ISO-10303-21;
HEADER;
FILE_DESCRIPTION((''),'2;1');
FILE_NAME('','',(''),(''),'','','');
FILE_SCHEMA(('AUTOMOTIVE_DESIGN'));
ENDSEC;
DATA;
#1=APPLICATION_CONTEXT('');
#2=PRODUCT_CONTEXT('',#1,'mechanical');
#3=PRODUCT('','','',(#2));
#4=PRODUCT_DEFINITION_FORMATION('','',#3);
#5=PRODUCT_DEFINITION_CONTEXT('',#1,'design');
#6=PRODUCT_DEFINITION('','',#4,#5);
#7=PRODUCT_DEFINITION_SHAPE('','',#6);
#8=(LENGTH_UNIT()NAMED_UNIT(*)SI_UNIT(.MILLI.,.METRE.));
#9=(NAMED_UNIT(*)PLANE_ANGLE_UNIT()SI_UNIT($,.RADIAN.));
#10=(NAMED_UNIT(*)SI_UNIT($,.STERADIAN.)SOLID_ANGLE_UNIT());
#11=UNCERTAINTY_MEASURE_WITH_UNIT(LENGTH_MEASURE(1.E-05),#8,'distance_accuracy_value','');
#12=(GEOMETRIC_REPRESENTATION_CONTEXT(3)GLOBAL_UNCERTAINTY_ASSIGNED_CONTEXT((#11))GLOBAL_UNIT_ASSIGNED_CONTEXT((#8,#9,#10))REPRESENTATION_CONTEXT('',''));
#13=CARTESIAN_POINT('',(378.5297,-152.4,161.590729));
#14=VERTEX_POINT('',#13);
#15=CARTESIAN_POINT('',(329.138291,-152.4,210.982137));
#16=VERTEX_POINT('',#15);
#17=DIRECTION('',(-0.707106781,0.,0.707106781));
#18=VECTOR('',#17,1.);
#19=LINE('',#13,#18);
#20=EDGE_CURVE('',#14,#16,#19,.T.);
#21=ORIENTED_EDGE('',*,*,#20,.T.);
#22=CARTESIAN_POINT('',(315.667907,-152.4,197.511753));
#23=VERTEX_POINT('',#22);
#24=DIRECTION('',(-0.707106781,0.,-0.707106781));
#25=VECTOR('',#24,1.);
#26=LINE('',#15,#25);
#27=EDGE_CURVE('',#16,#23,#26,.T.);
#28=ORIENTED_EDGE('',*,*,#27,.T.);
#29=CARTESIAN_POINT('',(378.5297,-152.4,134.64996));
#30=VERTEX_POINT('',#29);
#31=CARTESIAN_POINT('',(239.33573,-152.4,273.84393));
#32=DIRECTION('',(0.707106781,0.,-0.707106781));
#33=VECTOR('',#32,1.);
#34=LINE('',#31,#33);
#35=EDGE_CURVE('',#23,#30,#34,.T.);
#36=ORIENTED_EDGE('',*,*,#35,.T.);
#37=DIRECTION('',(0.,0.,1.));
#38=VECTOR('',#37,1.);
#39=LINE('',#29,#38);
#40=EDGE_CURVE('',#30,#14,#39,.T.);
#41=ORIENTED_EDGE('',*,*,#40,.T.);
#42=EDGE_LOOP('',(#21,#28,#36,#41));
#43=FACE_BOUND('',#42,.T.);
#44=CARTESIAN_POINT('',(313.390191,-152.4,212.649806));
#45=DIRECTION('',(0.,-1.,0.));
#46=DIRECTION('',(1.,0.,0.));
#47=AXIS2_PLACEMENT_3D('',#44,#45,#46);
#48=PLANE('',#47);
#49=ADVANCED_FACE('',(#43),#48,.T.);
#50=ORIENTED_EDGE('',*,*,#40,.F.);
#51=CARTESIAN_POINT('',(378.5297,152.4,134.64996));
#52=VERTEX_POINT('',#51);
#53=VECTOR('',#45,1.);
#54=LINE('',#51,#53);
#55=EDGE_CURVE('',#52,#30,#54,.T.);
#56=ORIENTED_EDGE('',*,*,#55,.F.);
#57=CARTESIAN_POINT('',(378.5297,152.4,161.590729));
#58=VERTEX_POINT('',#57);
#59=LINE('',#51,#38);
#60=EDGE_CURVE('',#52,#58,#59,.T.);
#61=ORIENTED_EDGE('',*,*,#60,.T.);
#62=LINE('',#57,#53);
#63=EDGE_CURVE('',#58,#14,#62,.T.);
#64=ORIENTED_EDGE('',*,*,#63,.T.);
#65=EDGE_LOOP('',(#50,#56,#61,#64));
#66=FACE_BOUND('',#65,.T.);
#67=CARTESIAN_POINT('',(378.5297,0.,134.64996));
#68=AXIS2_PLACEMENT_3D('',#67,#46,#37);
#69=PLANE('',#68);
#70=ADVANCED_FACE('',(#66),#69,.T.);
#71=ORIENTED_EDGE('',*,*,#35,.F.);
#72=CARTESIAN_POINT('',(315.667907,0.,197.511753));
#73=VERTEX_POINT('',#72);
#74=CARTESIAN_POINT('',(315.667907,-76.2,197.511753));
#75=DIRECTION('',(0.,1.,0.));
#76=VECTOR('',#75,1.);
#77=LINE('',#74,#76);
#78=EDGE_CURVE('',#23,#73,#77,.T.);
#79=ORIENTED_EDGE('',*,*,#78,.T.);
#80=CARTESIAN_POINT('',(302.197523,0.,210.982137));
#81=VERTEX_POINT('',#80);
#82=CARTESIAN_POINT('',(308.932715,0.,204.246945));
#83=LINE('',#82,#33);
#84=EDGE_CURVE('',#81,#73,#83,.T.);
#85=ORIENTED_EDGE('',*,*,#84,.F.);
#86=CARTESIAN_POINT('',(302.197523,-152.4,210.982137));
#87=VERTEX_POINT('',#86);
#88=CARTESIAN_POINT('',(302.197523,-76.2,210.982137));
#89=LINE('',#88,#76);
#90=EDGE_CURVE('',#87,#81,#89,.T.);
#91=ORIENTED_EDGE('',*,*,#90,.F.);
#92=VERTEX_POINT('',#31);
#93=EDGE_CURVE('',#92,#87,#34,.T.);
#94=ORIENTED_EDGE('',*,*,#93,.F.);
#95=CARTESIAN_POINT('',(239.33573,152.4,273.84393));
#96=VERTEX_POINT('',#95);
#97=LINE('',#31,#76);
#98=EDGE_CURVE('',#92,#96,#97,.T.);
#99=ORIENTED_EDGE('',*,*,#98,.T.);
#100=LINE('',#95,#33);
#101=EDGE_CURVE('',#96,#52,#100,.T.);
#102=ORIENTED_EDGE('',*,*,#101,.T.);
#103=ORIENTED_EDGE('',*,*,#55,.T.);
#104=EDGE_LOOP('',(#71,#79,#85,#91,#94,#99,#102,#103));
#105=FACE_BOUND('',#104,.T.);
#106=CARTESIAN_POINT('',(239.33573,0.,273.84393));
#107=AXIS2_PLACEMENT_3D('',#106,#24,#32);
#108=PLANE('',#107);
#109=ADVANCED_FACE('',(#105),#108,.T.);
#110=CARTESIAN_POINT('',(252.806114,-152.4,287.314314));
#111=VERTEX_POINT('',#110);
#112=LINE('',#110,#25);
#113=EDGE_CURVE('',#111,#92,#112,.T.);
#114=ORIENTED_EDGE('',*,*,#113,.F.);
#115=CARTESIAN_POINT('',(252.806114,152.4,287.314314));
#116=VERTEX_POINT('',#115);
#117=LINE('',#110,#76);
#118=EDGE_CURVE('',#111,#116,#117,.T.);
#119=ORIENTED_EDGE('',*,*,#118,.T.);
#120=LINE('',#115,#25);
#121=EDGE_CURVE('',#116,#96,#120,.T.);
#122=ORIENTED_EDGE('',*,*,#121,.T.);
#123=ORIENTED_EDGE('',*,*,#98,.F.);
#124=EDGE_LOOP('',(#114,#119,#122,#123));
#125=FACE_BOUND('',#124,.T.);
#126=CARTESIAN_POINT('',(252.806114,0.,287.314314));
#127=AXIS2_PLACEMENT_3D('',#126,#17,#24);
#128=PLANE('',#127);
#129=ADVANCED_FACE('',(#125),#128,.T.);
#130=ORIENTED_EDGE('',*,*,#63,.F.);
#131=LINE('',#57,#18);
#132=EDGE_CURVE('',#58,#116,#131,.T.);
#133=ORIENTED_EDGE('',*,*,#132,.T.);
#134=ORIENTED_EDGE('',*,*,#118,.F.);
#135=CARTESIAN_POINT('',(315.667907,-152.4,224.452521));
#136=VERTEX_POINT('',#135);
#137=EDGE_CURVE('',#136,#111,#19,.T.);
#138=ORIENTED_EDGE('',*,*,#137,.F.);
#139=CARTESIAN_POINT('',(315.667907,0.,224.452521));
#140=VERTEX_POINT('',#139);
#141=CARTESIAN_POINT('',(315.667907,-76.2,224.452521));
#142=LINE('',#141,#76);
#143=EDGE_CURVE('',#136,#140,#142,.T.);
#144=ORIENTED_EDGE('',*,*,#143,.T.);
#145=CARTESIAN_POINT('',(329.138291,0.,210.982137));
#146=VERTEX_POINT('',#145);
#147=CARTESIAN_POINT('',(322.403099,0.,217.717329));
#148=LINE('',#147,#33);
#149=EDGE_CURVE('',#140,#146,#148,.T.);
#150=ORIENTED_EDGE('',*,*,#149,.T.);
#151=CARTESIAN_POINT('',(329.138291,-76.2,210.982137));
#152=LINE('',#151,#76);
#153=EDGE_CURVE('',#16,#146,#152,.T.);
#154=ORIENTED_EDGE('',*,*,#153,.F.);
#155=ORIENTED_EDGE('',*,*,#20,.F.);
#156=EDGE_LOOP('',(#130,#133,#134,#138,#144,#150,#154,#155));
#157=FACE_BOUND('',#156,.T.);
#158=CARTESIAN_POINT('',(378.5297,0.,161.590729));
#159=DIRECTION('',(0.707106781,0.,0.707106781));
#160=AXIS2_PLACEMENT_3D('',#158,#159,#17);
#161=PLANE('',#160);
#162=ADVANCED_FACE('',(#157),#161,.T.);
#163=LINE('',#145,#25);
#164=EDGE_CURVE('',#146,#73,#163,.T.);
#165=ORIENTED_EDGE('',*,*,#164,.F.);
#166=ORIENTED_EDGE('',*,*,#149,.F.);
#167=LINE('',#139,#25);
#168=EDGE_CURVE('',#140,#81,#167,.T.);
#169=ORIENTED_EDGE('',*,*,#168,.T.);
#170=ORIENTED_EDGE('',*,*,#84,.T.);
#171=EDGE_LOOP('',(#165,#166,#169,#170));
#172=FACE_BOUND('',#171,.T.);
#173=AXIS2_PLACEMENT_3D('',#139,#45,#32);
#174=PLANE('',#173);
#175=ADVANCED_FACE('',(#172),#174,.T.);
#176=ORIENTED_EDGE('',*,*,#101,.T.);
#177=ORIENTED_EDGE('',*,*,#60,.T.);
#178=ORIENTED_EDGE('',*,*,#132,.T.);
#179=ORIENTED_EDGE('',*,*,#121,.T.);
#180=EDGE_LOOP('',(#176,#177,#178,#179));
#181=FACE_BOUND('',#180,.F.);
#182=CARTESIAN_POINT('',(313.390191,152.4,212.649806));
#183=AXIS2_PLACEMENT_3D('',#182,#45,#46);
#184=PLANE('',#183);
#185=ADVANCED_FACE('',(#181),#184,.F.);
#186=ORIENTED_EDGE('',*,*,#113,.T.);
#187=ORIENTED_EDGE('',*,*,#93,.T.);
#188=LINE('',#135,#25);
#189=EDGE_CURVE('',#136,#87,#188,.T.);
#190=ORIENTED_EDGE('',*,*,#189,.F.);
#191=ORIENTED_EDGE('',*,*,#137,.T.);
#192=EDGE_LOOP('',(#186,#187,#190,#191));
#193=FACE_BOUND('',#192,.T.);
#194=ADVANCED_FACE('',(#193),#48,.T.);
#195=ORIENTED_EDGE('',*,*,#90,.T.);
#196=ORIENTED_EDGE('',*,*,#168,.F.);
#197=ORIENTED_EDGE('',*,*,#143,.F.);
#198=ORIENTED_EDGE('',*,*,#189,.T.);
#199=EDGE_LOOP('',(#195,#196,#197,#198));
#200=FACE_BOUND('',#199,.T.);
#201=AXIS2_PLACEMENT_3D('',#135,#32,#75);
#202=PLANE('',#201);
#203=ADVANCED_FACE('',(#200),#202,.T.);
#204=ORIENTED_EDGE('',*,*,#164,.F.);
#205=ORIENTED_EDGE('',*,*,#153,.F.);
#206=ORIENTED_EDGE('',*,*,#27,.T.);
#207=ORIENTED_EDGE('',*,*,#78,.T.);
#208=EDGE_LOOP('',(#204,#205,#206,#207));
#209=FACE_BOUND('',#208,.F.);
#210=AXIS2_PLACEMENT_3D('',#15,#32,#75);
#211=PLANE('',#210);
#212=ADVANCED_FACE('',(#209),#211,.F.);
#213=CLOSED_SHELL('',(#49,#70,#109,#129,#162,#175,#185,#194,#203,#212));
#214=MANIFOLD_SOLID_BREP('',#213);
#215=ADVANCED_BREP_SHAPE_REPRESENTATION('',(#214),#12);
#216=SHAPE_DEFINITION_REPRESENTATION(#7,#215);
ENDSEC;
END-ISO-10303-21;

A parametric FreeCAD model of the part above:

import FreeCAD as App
import Part
import Sketcher
Q = App.Units.Quantity

doc = App.newDocument("Part")
params = doc.addObject("Spreadsheet::Sheet", "Params")
for row, (alias, value) in enumerate([
    ("sketch1_length", "7 in"),
    ("sketch1_length2", "7.75 in"),
    ("pad1_length", "12 in"),
    ("sketch2_height", "6 in"),
    ("sketch2_width", "0.75 in"),
    ("pocket1_length", "0.75 in"),
], start=1):
    params.set(f"A{row}", alias)
    params.set(f"B{row}", "=" + value)
    params.setAlias(f"B{row}", alias)

body = doc.addObject("PartDesign::Body", "Body")

# Sketch on XZ plane
sketch1 = body.newObject("Sketcher::SketchObject", "Sketch")
sketch1.AttachmentSupport = (doc.getObject("XZ_Plane"), [""])
sketch1.MapMode = "FlatFace"
sketch1.addGeometry(Part.LineSegment(App.Vector(239, 274, 0), App.Vector(379, 135, 0)), False)
sketch1.addGeometry(Part.LineSegment(App.Vector(379, 135, 0), App.Vector(379, 162, 0)), False)
sketch1.addGeometry(Part.LineSegment(App.Vector(379, 162, 0), App.Vector(253, 287, 0)), False)
sketch1.addGeometry(Part.LineSegment(App.Vector(253, 287, 0), App.Vector(239, 274, 0)), False)
sketch1.addConstraint(Sketcher.Constraint("Coincident", 0, 2, 1, 1))
sketch1.addConstraint(Sketcher.Constraint("Coincident", 1, 2, 2, 1))
sketch1.addConstraint(Sketcher.Constraint("Coincident", 2, 2, 3, 1))
sketch1.addConstraint(Sketcher.Constraint("Coincident", 3, 2, 0, 1))
sketch1.addConstraint(Sketcher.Constraint("Vertical", 1))
sketch1.addConstraint(Sketcher.Constraint("Parallel", 0, 2))
sketch1.addConstraint(Sketcher.Constraint("Perpendicular", 2, 3))
sketch1.addConstraint(Sketcher.Constraint("Distance", 2, Q("7 in")))
sketch1.addConstraint(Sketcher.Constraint("Angle", 0, Q("-45 deg")))
sketch1.addConstraint(Sketcher.Constraint("Distance", 0, Q("7.75 in")))
sketch1.addConstraint(Sketcher.Constraint("DistanceX", -1, 1, 0, 2, Q("378.5297 mm")))
sketch1.addConstraint(Sketcher.Constraint("DistanceY", -1, 1, 0, 2, Q("134.64996 mm")))
sketch1.setExpression("Constraints[7]", "Params.sketch1_length")
sketch1.setExpression("Constraints[9]", "Params.sketch1_length2")
pad1 = body.newObject("PartDesign::Pad", "Pad")
pad1.Profile = sketch1
pad1.setExpression("Length", "Params.pad1_length")
pad1.Midplane = True

# Sketch on an angled plane
sketch2 = body.newObject("Sketcher::SketchObject", "Sketch001")
sketch2.Placement = App.Placement(App.Vector(270.060214, 0, 270.060214), App.Rotation(App.Vector(0.707106781, 0, -0.707106781), App.Vector(0, 0.999999999, 0), App.Vector(0.707106781, 0, 0.707106781), "ZXY"))
sketch2.addGeometry(Part.LineSegment(App.Vector(64, 0, 0), App.Vector(64, -152, 0)), False)
sketch2.addGeometry(Part.LineSegment(App.Vector(64, -152, 0), App.Vector(84, -152, 0)), False)
sketch2.addGeometry(Part.LineSegment(App.Vector(84, -152, 0), App.Vector(84, 0, 0)), False)
sketch2.addGeometry(Part.LineSegment(App.Vector(84, 0, 0), App.Vector(64, 0, 0)), False)
sketch2.addConstraint(Sketcher.Constraint("Coincident", 0, 2, 1, 1))
sketch2.addConstraint(Sketcher.Constraint("Coincident", 1, 2, 2, 1))
sketch2.addConstraint(Sketcher.Constraint("Coincident", 2, 2, 3, 1))
sketch2.addConstraint(Sketcher.Constraint("Coincident", 3, 2, 0, 1))
sketch2.addConstraint(Sketcher.Constraint("Vertical", 0))
sketch2.addConstraint(Sketcher.Constraint("Horizontal", 1))
sketch2.addConstraint(Sketcher.Constraint("Vertical", 2))
sketch2.addConstraint(Sketcher.Constraint("Horizontal", 3))
sketch2.addConstraint(Sketcher.Constraint("PointOnObject", 2, 2, -1))
sketch2.addConstraint(Sketcher.Constraint("DistanceY", 0, 2, 0, 1, Q("6 in")))
sketch2.addConstraint(Sketcher.Constraint("DistanceX", 1, 1, 1, 2, Q("0.75 in")))
sketch2.addConstraint(Sketcher.Constraint("DistanceX", -1, 1, 0, 2, Q("64.499017 mm")))
sketch2.setExpression("Constraints[9]", "Params.sketch2_height")
sketch2.setExpression("Constraints[10]", "Params.sketch2_width")
pocket1 = body.newObject("PartDesign::Pocket", "Pocket")
pocket1.Profile = sketch2
pocket1.setExpression("Length", "Params.pocket1_length")

doc.recompute()
